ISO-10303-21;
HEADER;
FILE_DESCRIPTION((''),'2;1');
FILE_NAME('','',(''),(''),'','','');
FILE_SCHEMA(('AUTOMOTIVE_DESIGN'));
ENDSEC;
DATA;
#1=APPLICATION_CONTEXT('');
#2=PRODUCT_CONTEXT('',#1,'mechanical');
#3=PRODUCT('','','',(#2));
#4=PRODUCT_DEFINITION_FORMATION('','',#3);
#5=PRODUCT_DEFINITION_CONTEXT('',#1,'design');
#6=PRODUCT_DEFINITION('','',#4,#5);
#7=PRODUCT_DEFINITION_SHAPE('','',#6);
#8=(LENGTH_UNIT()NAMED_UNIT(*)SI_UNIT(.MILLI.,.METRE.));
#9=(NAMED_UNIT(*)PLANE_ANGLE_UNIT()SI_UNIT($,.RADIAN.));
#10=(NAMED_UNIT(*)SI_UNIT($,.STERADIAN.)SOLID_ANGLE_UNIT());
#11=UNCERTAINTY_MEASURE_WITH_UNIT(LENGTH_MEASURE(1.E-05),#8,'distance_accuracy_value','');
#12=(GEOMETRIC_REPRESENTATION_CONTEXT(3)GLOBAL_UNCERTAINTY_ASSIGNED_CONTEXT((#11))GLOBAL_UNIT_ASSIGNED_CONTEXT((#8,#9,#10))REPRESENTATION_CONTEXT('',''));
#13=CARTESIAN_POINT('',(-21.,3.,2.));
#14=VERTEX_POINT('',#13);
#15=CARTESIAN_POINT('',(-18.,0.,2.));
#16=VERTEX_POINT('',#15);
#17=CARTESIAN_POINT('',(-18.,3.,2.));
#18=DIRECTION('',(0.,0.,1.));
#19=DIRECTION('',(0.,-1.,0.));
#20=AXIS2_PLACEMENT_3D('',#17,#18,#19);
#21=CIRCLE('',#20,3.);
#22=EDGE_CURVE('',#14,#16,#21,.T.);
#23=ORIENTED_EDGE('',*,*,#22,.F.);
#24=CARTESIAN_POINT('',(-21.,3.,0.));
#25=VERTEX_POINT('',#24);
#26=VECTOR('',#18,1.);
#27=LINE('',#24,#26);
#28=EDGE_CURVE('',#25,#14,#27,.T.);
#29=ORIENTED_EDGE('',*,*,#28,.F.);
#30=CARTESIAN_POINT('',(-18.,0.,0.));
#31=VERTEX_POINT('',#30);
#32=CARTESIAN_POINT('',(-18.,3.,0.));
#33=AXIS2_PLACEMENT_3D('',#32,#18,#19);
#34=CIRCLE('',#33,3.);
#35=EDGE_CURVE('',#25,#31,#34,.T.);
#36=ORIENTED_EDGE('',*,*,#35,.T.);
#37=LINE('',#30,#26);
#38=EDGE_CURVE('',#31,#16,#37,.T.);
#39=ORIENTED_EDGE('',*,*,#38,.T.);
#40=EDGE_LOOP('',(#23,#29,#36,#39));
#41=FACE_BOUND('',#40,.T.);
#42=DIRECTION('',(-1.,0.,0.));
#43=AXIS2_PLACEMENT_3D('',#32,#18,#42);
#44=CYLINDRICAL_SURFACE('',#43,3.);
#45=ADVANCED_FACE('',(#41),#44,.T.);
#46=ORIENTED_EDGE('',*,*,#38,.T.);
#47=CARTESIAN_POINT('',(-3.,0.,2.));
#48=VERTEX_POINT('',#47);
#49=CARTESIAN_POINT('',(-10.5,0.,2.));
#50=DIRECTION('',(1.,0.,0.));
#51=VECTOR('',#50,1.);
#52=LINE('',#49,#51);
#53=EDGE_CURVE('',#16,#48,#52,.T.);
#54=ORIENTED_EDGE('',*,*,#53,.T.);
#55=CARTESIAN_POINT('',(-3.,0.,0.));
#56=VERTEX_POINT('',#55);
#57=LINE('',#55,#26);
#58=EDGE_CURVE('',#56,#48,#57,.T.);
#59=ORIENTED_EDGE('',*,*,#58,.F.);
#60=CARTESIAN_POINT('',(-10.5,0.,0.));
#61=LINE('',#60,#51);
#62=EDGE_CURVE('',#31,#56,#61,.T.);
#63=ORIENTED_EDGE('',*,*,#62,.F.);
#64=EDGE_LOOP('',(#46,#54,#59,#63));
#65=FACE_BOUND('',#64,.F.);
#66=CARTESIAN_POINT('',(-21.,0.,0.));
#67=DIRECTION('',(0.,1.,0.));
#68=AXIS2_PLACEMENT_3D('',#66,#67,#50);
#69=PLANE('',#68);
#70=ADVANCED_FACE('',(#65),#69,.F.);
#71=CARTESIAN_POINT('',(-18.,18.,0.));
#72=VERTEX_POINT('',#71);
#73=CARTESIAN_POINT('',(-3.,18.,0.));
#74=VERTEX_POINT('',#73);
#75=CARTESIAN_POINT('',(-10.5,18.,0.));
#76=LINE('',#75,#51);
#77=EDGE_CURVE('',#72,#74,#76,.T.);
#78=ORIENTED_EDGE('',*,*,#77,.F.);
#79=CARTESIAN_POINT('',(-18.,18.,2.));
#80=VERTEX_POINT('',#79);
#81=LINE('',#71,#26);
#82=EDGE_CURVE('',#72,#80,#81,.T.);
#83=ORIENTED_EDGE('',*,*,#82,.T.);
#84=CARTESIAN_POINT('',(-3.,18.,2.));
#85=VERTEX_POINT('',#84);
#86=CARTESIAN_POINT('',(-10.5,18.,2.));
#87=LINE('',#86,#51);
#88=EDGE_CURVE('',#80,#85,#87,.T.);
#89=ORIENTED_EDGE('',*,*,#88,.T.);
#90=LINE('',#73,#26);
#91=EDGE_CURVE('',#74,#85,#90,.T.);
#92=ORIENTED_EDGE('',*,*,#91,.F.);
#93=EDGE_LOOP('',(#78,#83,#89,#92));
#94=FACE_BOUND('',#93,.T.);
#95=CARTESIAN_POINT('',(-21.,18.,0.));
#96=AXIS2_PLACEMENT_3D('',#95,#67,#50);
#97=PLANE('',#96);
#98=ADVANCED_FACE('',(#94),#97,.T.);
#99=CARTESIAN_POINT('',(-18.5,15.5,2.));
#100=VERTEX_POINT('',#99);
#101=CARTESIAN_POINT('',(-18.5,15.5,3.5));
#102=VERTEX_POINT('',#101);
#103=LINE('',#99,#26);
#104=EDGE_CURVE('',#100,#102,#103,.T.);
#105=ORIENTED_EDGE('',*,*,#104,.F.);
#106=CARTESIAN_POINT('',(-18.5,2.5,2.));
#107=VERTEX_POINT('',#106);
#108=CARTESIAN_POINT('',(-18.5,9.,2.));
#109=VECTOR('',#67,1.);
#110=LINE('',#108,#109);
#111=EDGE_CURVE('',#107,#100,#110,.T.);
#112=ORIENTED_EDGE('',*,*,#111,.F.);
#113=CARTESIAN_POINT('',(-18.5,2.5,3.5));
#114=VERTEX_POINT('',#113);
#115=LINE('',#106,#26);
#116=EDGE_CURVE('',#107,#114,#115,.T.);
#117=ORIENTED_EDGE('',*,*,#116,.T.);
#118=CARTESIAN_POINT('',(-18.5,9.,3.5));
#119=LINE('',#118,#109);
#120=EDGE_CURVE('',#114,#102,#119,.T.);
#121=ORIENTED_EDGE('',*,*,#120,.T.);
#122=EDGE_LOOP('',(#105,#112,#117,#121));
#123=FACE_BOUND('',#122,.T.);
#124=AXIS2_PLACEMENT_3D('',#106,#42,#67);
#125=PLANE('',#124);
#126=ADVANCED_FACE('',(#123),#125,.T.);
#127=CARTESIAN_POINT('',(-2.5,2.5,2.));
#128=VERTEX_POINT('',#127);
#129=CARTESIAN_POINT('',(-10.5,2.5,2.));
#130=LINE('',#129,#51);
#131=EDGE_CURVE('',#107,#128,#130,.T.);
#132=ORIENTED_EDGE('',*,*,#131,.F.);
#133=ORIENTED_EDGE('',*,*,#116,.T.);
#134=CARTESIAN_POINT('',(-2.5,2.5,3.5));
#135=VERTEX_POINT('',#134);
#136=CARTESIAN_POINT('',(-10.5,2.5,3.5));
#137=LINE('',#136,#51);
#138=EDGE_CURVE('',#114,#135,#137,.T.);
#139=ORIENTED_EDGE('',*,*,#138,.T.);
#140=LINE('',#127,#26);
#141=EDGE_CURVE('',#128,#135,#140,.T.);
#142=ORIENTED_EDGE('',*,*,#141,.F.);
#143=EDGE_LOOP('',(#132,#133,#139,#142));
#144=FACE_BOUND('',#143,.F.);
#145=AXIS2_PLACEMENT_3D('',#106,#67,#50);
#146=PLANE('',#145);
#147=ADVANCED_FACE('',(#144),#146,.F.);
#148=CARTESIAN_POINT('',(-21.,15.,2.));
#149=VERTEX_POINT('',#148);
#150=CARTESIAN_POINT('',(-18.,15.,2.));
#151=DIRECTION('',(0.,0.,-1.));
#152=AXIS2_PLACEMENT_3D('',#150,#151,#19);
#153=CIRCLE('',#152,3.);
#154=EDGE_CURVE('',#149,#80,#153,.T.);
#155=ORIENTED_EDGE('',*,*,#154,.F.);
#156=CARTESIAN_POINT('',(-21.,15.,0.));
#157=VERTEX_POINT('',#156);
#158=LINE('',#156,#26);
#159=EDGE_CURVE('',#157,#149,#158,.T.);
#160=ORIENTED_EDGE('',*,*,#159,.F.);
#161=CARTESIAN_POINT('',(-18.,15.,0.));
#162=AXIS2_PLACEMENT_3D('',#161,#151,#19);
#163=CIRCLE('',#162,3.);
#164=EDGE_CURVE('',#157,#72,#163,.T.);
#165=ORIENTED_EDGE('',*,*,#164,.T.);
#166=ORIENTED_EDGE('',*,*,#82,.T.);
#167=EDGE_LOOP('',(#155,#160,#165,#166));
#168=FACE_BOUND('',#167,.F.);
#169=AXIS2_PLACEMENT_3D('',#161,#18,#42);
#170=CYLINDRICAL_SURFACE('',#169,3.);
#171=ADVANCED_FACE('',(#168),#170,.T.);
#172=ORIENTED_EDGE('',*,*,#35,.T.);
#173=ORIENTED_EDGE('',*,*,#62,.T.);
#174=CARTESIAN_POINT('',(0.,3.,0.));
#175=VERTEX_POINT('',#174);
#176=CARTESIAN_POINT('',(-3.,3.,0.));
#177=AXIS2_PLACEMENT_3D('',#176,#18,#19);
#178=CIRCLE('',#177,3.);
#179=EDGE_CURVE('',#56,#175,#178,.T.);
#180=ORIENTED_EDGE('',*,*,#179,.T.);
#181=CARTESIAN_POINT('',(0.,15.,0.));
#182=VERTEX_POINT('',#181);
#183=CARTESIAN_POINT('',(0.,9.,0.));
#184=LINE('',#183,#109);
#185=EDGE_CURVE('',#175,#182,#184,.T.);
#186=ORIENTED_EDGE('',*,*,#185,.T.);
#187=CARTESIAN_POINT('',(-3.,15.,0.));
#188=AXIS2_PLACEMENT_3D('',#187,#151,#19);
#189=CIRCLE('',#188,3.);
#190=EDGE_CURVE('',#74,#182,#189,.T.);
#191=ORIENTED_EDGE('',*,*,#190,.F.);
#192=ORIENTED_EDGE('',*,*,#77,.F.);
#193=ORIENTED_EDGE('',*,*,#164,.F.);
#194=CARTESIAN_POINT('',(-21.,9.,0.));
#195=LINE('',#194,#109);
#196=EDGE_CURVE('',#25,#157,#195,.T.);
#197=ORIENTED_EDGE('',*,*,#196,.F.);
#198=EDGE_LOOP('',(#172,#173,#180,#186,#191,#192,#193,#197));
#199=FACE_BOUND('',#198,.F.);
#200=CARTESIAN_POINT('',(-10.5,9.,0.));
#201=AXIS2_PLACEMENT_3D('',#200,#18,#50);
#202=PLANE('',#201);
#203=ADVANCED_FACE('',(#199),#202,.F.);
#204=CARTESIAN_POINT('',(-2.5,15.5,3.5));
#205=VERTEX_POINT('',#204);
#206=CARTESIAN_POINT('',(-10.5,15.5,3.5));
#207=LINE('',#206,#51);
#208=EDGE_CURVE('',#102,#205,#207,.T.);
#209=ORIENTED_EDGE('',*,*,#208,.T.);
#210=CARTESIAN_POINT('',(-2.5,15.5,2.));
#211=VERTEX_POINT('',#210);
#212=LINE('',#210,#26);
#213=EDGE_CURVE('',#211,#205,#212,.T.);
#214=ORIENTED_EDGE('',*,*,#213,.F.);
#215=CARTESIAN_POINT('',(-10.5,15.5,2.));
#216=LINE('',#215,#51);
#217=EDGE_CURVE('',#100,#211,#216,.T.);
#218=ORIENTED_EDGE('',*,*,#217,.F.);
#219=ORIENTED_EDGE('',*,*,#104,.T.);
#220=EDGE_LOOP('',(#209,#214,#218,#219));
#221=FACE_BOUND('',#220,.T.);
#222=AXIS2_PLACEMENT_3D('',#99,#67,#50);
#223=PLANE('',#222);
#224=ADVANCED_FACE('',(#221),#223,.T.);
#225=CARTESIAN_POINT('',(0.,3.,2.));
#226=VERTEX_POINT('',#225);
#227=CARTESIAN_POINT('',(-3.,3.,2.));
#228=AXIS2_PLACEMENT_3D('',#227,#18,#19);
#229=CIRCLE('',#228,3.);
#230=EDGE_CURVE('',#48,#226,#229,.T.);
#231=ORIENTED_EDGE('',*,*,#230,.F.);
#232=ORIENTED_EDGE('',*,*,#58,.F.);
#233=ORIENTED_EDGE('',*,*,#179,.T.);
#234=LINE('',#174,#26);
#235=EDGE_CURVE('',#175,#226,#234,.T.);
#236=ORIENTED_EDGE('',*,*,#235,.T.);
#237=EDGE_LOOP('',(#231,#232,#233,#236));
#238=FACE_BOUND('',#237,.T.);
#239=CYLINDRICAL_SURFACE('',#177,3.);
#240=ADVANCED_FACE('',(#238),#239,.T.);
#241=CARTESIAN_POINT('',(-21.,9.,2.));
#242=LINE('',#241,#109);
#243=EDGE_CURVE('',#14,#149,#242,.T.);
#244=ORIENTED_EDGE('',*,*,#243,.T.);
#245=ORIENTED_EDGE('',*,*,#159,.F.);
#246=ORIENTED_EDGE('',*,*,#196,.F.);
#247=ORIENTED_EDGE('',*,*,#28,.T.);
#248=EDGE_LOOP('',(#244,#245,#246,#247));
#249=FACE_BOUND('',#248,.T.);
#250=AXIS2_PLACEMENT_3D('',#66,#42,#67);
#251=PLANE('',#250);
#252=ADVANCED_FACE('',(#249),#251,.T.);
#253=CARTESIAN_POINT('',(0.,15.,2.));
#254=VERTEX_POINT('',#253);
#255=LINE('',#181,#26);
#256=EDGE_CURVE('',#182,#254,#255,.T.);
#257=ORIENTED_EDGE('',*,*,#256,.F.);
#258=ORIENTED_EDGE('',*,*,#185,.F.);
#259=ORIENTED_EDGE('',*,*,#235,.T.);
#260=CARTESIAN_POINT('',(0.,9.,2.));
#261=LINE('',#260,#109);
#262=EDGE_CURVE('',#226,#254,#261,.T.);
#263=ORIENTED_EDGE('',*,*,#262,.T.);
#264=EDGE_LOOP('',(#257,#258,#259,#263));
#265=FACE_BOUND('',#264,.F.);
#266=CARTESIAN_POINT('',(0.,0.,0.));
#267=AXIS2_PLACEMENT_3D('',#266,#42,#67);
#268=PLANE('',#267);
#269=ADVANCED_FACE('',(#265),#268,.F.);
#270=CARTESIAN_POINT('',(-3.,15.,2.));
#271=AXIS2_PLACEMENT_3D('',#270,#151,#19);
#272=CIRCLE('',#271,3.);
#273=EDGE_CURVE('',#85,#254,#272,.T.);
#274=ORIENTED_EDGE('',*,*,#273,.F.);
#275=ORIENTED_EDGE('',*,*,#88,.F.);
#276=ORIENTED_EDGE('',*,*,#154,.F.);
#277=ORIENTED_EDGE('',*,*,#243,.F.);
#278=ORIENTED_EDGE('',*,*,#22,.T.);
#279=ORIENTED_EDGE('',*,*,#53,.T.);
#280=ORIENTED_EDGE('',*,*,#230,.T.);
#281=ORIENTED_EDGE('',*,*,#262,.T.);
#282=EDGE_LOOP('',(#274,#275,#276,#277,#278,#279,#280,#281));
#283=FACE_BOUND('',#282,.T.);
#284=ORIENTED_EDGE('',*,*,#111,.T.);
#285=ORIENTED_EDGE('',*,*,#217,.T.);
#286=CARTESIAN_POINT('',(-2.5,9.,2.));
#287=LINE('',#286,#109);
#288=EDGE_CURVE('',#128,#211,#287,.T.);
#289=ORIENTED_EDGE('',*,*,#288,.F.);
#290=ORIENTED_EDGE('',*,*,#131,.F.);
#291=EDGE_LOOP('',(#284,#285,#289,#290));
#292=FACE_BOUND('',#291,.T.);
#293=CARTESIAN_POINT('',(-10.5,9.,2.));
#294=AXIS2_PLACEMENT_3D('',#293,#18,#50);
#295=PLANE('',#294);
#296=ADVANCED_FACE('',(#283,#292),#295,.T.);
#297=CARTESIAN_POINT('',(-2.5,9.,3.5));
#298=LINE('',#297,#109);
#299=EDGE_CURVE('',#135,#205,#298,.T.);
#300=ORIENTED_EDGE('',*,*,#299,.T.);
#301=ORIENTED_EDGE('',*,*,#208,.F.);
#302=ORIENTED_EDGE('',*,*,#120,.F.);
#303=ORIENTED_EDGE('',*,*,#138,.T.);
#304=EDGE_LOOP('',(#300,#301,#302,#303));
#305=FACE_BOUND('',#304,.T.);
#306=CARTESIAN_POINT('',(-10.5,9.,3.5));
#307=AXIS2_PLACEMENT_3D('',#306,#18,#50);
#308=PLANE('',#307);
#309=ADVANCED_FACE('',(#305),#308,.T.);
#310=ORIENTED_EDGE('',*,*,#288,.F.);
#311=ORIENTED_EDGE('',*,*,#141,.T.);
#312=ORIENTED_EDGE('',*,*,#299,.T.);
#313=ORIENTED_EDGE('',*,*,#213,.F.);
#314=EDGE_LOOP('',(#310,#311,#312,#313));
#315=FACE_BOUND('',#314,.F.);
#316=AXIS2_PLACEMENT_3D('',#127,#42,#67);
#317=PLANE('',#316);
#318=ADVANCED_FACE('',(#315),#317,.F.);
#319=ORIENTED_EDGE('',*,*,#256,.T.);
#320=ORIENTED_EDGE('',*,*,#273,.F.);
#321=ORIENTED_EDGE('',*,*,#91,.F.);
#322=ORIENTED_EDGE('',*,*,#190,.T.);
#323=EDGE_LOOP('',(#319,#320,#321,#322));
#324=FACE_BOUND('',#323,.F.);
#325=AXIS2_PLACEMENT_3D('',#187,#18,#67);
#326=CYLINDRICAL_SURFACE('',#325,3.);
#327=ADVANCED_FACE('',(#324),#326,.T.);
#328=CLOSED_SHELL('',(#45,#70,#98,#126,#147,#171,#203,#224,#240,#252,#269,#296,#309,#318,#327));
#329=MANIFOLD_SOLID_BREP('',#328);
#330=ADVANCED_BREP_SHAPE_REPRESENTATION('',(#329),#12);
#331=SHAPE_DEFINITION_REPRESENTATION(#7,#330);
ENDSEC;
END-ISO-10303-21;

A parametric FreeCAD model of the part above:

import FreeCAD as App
import Part
import Sketcher

V = App.Vector
Q = App.Units.Quantity


def edges_at(feature, points):
    """Names of the edges that pass closest to the given points."""
    edges = feature.Shape.Edges
    near = lambda p: min(range(len(edges)), key=lambda i: edges[i].distToShape(Part.Vertex(*p))[0])
    return sorted({f"Edge{near(p) + 1}" for p in points})


def add_polygon(sketch, points):
    """Adds a closed chain of lines whose ends are joined by coincident constraints."""
    first, n = sketch.GeometryCount, len(points)
    for a, b in zip(points, points[1:] + points[:1]):
        sketch.addGeometry(Part.LineSegment(App.Vector(*a, 0), App.Vector(*b, 0)), False)
    for i in range(n):
        sketch.addConstraint(Sketcher.Constraint("Coincident", first + i, 2, first + (i + 1) % n, 1))

doc = App.newDocument("Part")
body = doc.addObject("PartDesign::Body", "Body")

# Sketch on XY plane
sketch1 = doc.addObject("Sketcher::SketchObject", "Sketch")
body.addObject(sketch1)
sketch1.AttachmentSupport = (doc.XY_Plane, [""])
sketch1.MapMode = "FlatFace"
add_polygon(sketch1, [(-21, 18), (-21, 0), (0, 0), (0, 18)])  # lines 0-3
sketch1.addConstraint(Sketcher.Constraint("Vertical", 0))
sketch1.addConstraint(Sketcher.Constraint("Horizontal", 1))
sketch1.addConstraint(Sketcher.Constraint("Vertical", 2))
sketch1.addConstraint(Sketcher.Constraint("Horizontal", 3))
sketch1.addConstraint(Sketcher.Constraint("Coincident", 1, 2, -1, 1))
sketch1.addConstraint(Sketcher.Constraint("DistanceX", 1, 1, 1, 2, Q("21 mm")))
sketch1.addConstraint(Sketcher.Constraint("DistanceY", 0, 2, 0, 1, Q("18 mm")))
pad1 = doc.addObject("PartDesign::Pad", "Pad")
body.addObject(pad1)
pad1.Profile = sketch1
pad1.Length = 2

# Sketch on XY plane
sketch2 = doc.addObject("Sketcher::SketchObject", "Sketch001")
body.addObject(sketch2)
sketch2.AttachmentSupport = (doc.XY_Plane, [""])
sketch2.MapMode = "FlatFace"
sketch2.AttachmentOffset = App.Placement(V(0, 0, 2), App.Rotation())
add_polygon(sketch2, [(-18, 16), (-18, 2), (-2, 2), (-2, 16)])  # lines 0-3
sketch2.addConstraint(Sketcher.Constraint("Vertical", 0))
sketch2.addConstraint(Sketcher.Constraint("Horizontal", 1))
sketch2.addConstraint(Sketcher.Constraint("Vertical", 2))
sketch2.addConstraint(Sketcher.Constraint("Horizontal", 3))
sketch2.addConstraint(Sketcher.Constraint("DistanceX", 1, 1, 1, 2, Q("16 mm")))
sketch2.addConstraint(Sketcher.Constraint("DistanceY", 0, 2, 0, 1, Q("13 mm")))
sketch2.addConstraint(Sketcher.Constraint("DistanceX", 0, 2, -1, 1, Q("18.5 mm")))
sketch2.addConstraint(Sketcher.Constraint("DistanceY", -1, 1, 0, 2, Q("2.5 mm")))
pad2 = doc.addObject("PartDesign::Pad", "Pad001")
body.addObject(pad2)
pad2.Profile = sketch2
pad2.Length = 1.5
doc.recompute()

fillet = doc.addObject("PartDesign::Fillet", "Fillet")
body.addObject(fillet)
fillet.Base = (pad2, edges_at(pad2, [
    (0, 18, 1),
    (0, 0, 1),
    (-21, 0, 1),
    (-21, 18, 1),
]))
fillet.Radius = 3

doc.recompute()
